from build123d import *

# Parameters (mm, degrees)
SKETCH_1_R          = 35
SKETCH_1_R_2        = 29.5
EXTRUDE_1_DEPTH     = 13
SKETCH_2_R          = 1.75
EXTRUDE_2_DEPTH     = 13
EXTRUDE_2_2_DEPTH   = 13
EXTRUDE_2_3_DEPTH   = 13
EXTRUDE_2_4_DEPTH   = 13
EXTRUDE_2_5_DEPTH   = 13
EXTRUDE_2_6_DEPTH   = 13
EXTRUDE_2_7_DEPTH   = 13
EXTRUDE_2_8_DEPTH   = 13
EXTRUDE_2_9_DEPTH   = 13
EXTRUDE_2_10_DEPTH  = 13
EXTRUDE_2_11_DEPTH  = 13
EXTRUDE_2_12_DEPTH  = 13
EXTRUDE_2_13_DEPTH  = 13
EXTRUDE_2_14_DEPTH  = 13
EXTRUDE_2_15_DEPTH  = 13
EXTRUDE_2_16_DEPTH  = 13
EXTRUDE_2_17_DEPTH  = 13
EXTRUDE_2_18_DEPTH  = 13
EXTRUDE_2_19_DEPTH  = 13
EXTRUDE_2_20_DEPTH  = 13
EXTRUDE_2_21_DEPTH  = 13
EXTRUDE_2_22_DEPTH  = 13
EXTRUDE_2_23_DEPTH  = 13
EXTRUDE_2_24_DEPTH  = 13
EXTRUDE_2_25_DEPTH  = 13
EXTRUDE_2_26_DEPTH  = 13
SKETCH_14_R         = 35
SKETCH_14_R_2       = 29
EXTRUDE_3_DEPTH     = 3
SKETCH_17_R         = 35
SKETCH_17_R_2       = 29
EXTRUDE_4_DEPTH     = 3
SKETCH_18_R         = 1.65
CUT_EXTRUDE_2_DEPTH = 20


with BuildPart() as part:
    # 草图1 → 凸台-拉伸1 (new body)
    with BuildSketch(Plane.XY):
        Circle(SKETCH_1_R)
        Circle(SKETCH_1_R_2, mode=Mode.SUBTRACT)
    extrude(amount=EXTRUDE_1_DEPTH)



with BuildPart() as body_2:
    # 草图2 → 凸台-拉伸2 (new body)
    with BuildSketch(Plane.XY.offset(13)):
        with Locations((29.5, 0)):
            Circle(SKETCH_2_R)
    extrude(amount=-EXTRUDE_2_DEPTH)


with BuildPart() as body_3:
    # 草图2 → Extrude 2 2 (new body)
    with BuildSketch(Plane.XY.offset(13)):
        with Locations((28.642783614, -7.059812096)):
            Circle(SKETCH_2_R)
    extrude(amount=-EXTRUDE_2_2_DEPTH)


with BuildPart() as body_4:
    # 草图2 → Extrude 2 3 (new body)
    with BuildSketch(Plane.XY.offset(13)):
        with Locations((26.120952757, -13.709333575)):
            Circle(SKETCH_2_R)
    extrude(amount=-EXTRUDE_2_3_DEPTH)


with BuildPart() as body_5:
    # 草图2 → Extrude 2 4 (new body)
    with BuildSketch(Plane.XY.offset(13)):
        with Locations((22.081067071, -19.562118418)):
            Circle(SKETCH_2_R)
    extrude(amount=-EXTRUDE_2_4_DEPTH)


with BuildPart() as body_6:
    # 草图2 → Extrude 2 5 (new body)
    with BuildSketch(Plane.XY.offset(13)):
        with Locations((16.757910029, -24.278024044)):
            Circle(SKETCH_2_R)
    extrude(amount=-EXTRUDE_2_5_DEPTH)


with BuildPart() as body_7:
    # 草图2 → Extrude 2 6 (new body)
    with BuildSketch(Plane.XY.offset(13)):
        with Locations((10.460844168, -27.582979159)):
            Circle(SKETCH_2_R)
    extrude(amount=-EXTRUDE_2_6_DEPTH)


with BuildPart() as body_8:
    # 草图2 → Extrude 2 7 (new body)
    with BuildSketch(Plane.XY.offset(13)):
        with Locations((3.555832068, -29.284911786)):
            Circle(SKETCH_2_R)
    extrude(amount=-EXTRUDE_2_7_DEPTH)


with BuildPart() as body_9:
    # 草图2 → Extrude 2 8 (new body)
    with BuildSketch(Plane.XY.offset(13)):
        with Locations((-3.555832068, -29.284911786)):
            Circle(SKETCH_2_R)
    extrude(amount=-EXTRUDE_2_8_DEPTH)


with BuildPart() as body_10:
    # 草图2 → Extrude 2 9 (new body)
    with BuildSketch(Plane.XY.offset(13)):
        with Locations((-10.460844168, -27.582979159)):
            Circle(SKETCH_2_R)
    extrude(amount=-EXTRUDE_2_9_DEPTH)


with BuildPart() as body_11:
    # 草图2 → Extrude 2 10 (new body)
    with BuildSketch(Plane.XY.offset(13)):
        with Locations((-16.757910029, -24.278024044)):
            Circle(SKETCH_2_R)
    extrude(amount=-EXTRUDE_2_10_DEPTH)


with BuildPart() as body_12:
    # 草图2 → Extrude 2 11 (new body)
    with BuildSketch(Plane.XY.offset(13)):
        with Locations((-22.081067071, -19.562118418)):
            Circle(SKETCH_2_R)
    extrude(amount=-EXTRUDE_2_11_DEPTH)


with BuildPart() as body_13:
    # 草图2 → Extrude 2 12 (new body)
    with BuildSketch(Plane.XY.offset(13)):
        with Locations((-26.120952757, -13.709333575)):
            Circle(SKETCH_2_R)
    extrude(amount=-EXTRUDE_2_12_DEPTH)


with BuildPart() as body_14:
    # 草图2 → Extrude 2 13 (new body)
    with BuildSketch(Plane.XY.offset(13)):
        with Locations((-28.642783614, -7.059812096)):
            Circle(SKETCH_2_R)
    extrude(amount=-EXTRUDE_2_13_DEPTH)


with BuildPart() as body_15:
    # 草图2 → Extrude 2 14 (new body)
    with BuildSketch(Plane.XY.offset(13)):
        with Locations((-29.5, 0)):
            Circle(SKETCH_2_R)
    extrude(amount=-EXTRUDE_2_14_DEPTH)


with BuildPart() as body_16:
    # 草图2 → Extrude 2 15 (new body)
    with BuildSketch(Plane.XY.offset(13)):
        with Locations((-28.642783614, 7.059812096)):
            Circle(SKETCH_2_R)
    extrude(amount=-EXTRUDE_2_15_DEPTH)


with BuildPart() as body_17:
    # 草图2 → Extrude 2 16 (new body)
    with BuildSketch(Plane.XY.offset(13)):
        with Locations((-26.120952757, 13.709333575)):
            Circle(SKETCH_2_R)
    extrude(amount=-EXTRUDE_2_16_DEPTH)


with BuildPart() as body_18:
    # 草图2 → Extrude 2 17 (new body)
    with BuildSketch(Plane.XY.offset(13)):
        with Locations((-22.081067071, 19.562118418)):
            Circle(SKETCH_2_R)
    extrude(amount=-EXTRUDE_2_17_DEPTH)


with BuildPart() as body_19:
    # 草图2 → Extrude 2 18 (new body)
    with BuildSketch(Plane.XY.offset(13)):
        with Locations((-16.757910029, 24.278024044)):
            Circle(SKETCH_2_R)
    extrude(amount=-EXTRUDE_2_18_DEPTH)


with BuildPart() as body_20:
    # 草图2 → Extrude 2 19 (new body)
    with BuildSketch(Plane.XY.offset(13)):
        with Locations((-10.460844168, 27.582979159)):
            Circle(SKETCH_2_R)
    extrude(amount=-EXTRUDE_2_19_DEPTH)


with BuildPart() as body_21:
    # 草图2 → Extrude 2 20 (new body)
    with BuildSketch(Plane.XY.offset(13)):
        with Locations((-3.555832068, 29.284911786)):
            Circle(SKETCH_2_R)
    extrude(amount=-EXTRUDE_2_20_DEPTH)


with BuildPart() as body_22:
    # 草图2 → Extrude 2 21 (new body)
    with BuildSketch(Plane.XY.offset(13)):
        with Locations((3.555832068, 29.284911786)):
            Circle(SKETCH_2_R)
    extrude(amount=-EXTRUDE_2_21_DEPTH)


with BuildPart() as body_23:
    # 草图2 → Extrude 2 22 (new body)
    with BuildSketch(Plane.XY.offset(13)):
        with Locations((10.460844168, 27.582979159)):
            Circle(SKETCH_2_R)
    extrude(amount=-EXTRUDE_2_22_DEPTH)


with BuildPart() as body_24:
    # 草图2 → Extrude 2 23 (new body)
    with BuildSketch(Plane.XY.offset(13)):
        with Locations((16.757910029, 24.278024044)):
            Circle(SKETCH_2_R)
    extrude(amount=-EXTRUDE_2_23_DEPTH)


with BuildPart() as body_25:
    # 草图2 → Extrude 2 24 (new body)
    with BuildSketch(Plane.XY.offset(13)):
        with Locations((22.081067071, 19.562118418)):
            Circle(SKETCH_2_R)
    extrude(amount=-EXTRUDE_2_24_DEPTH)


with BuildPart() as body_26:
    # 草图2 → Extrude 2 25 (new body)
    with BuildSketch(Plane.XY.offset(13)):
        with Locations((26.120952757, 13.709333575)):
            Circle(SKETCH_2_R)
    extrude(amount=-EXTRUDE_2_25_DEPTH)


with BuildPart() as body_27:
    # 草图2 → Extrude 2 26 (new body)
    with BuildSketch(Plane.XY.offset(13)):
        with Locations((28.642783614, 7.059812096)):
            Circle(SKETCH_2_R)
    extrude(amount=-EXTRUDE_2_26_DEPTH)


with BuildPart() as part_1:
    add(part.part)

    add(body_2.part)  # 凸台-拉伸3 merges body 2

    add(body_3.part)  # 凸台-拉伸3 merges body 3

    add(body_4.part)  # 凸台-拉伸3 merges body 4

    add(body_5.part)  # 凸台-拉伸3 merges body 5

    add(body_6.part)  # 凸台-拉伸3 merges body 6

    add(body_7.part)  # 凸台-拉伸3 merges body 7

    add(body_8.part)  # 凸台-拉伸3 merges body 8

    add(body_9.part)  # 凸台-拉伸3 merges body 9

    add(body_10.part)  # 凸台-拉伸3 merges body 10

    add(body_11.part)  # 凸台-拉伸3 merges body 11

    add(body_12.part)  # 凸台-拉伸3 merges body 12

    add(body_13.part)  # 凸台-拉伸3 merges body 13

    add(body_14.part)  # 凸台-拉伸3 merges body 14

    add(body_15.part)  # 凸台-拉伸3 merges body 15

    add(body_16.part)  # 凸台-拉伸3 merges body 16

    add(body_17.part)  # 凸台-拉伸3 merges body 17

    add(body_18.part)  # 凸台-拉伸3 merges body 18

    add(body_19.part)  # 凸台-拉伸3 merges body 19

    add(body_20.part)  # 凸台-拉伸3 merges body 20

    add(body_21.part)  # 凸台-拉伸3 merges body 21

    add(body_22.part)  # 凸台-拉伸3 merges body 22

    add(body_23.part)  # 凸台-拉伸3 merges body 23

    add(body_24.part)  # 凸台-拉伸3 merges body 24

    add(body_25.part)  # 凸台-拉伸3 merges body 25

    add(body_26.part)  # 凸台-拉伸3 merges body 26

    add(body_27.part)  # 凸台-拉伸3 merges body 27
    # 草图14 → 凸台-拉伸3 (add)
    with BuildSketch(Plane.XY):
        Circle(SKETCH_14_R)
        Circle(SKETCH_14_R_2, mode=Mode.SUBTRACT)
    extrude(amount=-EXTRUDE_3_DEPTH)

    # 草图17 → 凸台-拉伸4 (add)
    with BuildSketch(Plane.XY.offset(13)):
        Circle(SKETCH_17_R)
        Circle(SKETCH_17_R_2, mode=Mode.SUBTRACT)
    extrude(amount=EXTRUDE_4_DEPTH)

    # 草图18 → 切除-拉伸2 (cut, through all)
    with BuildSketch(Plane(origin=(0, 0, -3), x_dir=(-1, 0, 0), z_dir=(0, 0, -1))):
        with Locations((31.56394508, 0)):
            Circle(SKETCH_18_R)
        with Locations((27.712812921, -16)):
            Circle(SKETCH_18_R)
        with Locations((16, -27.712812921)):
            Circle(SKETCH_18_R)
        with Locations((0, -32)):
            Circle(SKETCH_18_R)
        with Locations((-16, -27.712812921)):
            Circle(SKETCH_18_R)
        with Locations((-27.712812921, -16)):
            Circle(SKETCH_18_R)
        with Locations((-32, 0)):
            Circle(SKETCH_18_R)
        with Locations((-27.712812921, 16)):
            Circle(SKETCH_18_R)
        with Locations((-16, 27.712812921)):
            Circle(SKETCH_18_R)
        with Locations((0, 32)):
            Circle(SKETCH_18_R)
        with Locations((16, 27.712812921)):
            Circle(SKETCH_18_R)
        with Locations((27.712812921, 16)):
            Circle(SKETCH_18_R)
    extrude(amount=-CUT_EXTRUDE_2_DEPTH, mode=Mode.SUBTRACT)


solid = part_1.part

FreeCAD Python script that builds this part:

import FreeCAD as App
import Part
import Sketcher
Q = App.Units.Quantity

doc = App.newDocument("Part")
body = doc.addObject("PartDesign::Body", "Body")

# Sketch on XY plane
sketch1 = body.newObject("Sketcher::SketchObject", "Sketch")
sketch1.AttachmentSupport = (doc.getObject("XY_Plane"), [""])
sketch1.MapMode = "FlatFace"
sketch1.addGeometry([
    Part.Circle(App.Vector(0, 0, 0), App.Vector(0, 0, 1), 35),
    Part.Circle(App.Vector(0, 0, 0), App.Vector(0, 0, 1), 29.5),
], False)
sketch1.addConstraint([
    Sketcher.Constraint("Coincident", 0, 3, -1, 1),
    Sketcher.Constraint("Coincident", 1, 3, -1, 1),
    Sketcher.Constraint("Diameter", 0, Q("70 mm")),
    Sketcher.Constraint("Diameter", 1, Q("59 mm")),
])
pad1 = body.newObject("PartDesign::Pad", "Pad")
pad1.Profile = sketch1
pad1.Length = 13
body2 = doc.addObject("PartDesign::Body", "Body001")

# Sketch on XY plane
sketch2 = body2.newObject("Sketcher::SketchObject", "Sketch001")
sketch2.AttachmentSupport = (doc.getObject("XY_Plane001"), [""])
sketch2.MapMode = "FlatFace"
sketch2.AttachmentOffset = App.Placement(App.Vector(0, 0, 13), App.Rotation())
sketch2.addGeometry(Part.Circle(App.Vector(29.5, 0, 0), App.Vector(0, 0, 1), 1.75), False)
sketch2.addConstraint([
    Sketcher.Constraint("PointOnObject", 0, 3, -1),
    Sketcher.Constraint("Diameter", 0, Q("3.5 mm")),
    Sketcher.Constraint("DistanceX", -1, 1, 0, 3, Q("29.5 mm")),
])
pad2 = body2.newObject("PartDesign::Pad", "Pad001")
pad2.Profile = sketch2
pad2.Length = 13
pad2.Reversed = True
body3 = doc.addObject("PartDesign::Body", "Body002")

# Sketch on XY plane
sketch3 = body3.newObject("Sketcher::SketchObject", "Sketch002")
sketch3.AttachmentSupport = (doc.getObject("XY_Plane002"), [""])
sketch3.MapMode = "FlatFace"
sketch3.AttachmentOffset = App.Placement(App.Vector(0, 0, 13), App.Rotation())
sketch3.addGeometry(Part.Circle(App.Vector(28.642784, -7.059812, 0), App.Vector(0, 0, 1), 1.75), False)
sketch3.addConstraint([
    Sketcher.Constraint("Diameter", 0, Q("3.5 mm")),
    Sketcher.Constraint("DistanceX", -1, 1, 0, 3, Q("28.642784 mm")),
    Sketcher.Constraint("DistanceY", 0, 3, -1, 1, Q("7.059812 mm")),
])
pad3 = body3.newObject("PartDesign::Pad", "Pad002")
pad3.Profile = sketch3
pad3.Length = 13
pad3.Reversed = True
body4 = doc.addObject("PartDesign::Body", "Body003")

# Sketch on XY plane
sketch4 = body4.newObject("Sketcher::SketchObject", "Sketch003")
sketch4.AttachmentSupport = (doc.getObject("XY_Plane003"), [""])
sketch4.MapMode = "FlatFace"
sketch4.AttachmentOffset = App.Placement(App.Vector(0, 0, 13), App.Rotation())
sketch4.addGeometry(Part.Circle(App.Vector(26.120953, -13.709334, 0), App.Vector(0, 0, 1), 1.75), False)
sketch4.addConstraint([
    Sketcher.Constraint("Diameter", 0, Q("3.5 mm")),
    Sketcher.Constraint("DistanceX", -1, 1, 0, 3, Q("26.120953 mm")),
    Sketcher.Constraint("DistanceY", 0, 3, -1, 1, Q("13.709334 mm")),
])
pad4 = body4.newObject("PartDesign::Pad", "Pad003")
pad4.Profile = sketch4
pad4.Length = 13
pad4.Reversed = True
body5 = doc.addObject("PartDesign::Body", "Body004")

# Sketch on XY plane
sketch5 = body5.newObject("Sketcher::SketchObject", "Sketch004")
sketch5.AttachmentSupport = (doc.getObject("XY_Plane004"), [""])
sketch5.MapMode = "FlatFace"
sketch5.AttachmentOffset = App.Placement(App.Vector(0, 0, 13), App.Rotation())
sketch5.addGeometry(Part.Circle(App.Vector(22.081067, -19.562118, 0), App.Vector(0, 0, 1), 1.75), False)
sketch5.addConstraint([
    Sketcher.Constraint("Diameter", 0, Q("3.5 mm")),
    Sketcher.Constraint("DistanceY", 0, 3, -1, 1, Q("19.562118 mm")),
    Sketcher.Constraint("DistanceX", -1, 1, 0, 3, Q("22.081067 mm")),
])
pad5 = body5.newObject("PartDesign::Pad", "Pad004")
pad5.Profile = sketch5
pad5.Length = 13
pad5.Reversed = True
body6 = doc.addObject("PartDesign::Body", "Body005")

# Sketch on XY plane
sketch6 = body6.newObject("Sketcher::SketchObject", "Sketch005")
sketch6.AttachmentSupport = (doc.getObject("XY_Plane005"), [""])
sketch6.MapMode = "FlatFace"
sketch6.AttachmentOffset = App.Placement(App.Vector(0, 0, 13), App.Rotation())
sketch6.addGeometry(Part.Circle(App.Vector(16.75791, -24.278024, 0), App.Vector(0, 0, 1), 1.75), False)
sketch6.addConstraint([
    Sketcher.Constraint("Diameter", 0, Q("3.5 mm")),
    Sketcher.Constraint("DistanceX", -1, 1, 0, 3, Q("16.75791 mm")),
    Sketcher.Constraint("DistanceY", 0, 3, -1, 1, Q("24.278024 mm")),
])
pad6 = body6.newObject("PartDesign::Pad", "Pad005")
pad6.Profile = sketch6
pad6.Length = 13
pad6.Reversed = True
body7 = doc.addObject("PartDesign::Body", "Body006")

# Sketch on XY plane
sketch7 = body7.newObject("Sketcher::SketchObject", "Sketch006")
sketch7.AttachmentSupport = (doc.getObject("XY_Plane006"), [""])
sketch7.MapMode = "FlatFace"
sketch7.AttachmentOffset = App.Placement(App.Vector(0, 0, 13), App.Rotation())
sketch7.addGeometry(Part.Circle(App.Vector(10.460844, -27.582979, 0), App.Vector(0, 0, 1), 1.75), False)
sketch7.addConstraint([
    Sketcher.Constraint("Diameter", 0, Q("3.5 mm")),
    Sketcher.Constraint("DistanceY", 0, 3, -1, 1, Q("27.582979 mm")),
    Sketcher.Constraint("DistanceX", -1, 1, 0, 3, Q("10.460844 mm")),
])
pad7 = body7.newObject("PartDesign::Pad", "Pad006")
pad7.Profile = sketch7
pad7.Length = 13
pad7.Reversed = True
body8 = doc.addObject("PartDesign::Body", "Body007")

# Sketch on XY plane
sketch8 = body8.newObject("Sketcher::SketchObject", "Sketch007")
sketch8.AttachmentSupport = (doc.getObject("XY_Plane007"), [""])
sketch8.MapMode = "FlatFace"
sketch8.AttachmentOffset = App.Placement(App.Vector(0, 0, 13), App.Rotation())
sketch8.addGeometry(Part.Circle(App.Vector(3.555832, -29.284912, 0), App.Vector(0, 0, 1), 1.75), False)
sketch8.addConstraint([
    Sketcher.Constraint("Diameter", 0, Q("3.5 mm")),
    Sketcher.Constraint("DistanceY", 0, 3, -1, 1, Q("29.284912 mm")),
    Sketcher.Constraint("DistanceX", -1, 1, 0, 3, Q("3.555832 mm")),
])
pad8 = body8.newObject("PartDesign::Pad", "Pad007")
pad8.Profile = sketch8
pad8.Length = 13
pad8.Reversed = True
body9 = doc.addObject("PartDesign::Body", "Body008")

# Sketch on XY plane
sketch9 = body9.newObject("Sketcher::SketchObject", "Sketch008")
sketch9.AttachmentSupport = (doc.getObject("XY_Plane008"), [""])
sketch9.MapMode = "FlatFace"
sketch9.AttachmentOffset = App.Placement(App.Vector(0, 0, 13), App.Rotation())
sketch9.addGeometry(Part.Circle(App.Vector(-3.555832, -29.284912, 0), App.Vector(0, 0, 1), 1.75), False)
sketch9.addConstraint([
    Sketcher.Constraint("Diameter", 0, Q("3.5 mm")),
    Sketcher.Constraint("DistanceY", 0, 3, -1, 1, Q("29.284912 mm")),
    Sketcher.Constraint("DistanceX", 0, 3, -1, 1, Q("3.555832 mm")),
])
pad9 = body9.newObject("PartDesign::Pad", "Pad008")
pad9.Profile = sketch9
pad9.Length = 13
pad9.Reversed = True
body10 = doc.addObject("PartDesign::Body", "Body009")

# Sketch on XY plane
sketch10 = body10.newObject("Sketcher::SketchObject", "Sketch009")
sketch10.AttachmentSupport = (doc.getObject("XY_Plane009"), [""])
sketch10.MapMode = "FlatFace"
sketch10.AttachmentOffset = App.Placement(App.Vector(0, 0, 13), App.Rotation())
sketch10.addGeometry(Part.Circle(App.Vector(-10.460844, -27.582979, 0), App.Vector(0, 0, 1), 1.75), False)
sketch10.addConstraint([
    Sketcher.Constraint("Diameter", 0, Q("3.5 mm")),
    Sketcher.Constraint("DistanceY", 0, 3, -1, 1, Q("27.582979 mm")),
    Sketcher.Constraint("DistanceX", 0, 3, -1, 1, Q("10.460844 mm")),
])
pad10 = body10.newObject("PartDesign::Pad", "Pad009")
pad10.Profile = sketch10
pad10.Length = 13
pad10.Reversed = True
body11 = doc.addObject("PartDesign::Body", "Body010")

# Sketch on XY plane
sketch11 = body11.newObject("Sketcher::SketchObject", "Sketch010")
sketch11.AttachmentSupport = (doc.getObject("XY_Plane010"), [""])
sketch11.MapMode = "FlatFace"
sketch11.AttachmentOffset = App.Placement(App.Vector(0, 0, 13), App.Rotation())
sketch11.addGeometry(Part.Circle(App.Vector(-16.75791, -24.278024, 0), App.Vector(0, 0, 1), 1.75), False)
sketch11.addConstraint([
    Sketcher.Constraint("Diameter", 0, Q("3.5 mm")),
    Sketcher.Constraint("DistanceX", 0, 3, -1, 1, Q("16.75791 mm")),
    Sketcher.Constraint("DistanceY", 0, 3, -1, 1, Q("24.278024 mm")),
])
pad11 = body11.newObject("PartDesign::Pad", "Pad010")
pad11.Profile = sketch11
pad11.Length = 13
pad11.Reversed = True
body12 = doc.addObject("PartDesign::Body", "Body011")

# Sketch on XY plane
sketch12 = body12.newObject("Sketcher::SketchObject", "Sketch011")
sketch12.AttachmentSupport = (doc.getObject("XY_Plane011"), [""])
sketch12.MapMode = "FlatFace"
sketch12.AttachmentOffset = App.Placement(App.Vector(0, 0, 13), App.Rotation())
sketch12.addGeometry(Part.Circle(App.Vector(-22.081067, -19.562118, 0), App.Vector(0, 0, 1), 1.75), False)
sketch12.addConstraint([
    Sketcher.Constraint("Diameter", 0, Q("3.5 mm")),
    Sketcher.Constraint("DistanceY", 0, 3, -1, 1, Q("19.562118 mm")),
    Sketcher.Constraint("DistanceX", 0, 3, -1, 1, Q("22.081067 mm")),
])
pad12 = body12.newObject("PartDesign::Pad", "Pad011")
pad12.Profile = sketch12
pad12.Length = 13
pad12.Reversed = True
body13 = doc.addObject("PartDesign::Body", "Body012")

# Sketch on XY plane
sketch13 = body13.newObject("Sketcher::SketchObject", "Sketch012")
sketch13.AttachmentSupport = (doc.getObject("XY_Plane012"), [""])
sketch13.MapMode = "FlatFace"
sketch13.AttachmentOffset = App.Placement(App.Vector(0, 0, 13), App.Rotation())
sketch13.addGeometry(Part.Circle(App.Vector(-26.120953, -13.709334, 0), App.Vector(0, 0, 1), 1.75), False)
sketch13.addConstraint([
    Sketcher.Constraint("Diameter", 0, Q("3.5 mm")),
    Sketcher.Constraint("DistanceX", 0, 3, -1, 1, Q("26.120953 mm")),
    Sketcher.Constraint("DistanceY", 0, 3, -1, 1, Q("13.709334 mm")),
])
pad13 = body13.newObject("PartDesign::Pad", "Pad012")
pad13.Profile = sketch13
pad13.Length = 13
pad13.Reversed = True
body14 = doc.addObject("PartDesign::Body", "Body013")

# Sketch on XY plane
sketch14 = body14.newObject("Sketcher::SketchObject", "Sketch013")
sketch14.AttachmentSupport = (doc.getObject("XY_Plane013"), [""])
sketch14.MapMode = "FlatFace"
sketch14.AttachmentOffset = App.Placement(App.Vector(0, 0, 13), App.Rotation())
sketch14.addGeometry(Part.Circle(App.Vector(-28.642784, -7.059812, 0), App.Vector(0, 0, 1), 1.75), False)
sketch14.addConstraint([
    Sketcher.Constraint("Diameter", 0, Q("3.5 mm")),
    Sketcher.Constraint("DistanceX", 0, 3, -1, 1, Q("28.642784 mm")),
    Sketcher.Constraint("DistanceY", 0, 3, -1, 1, Q("7.059812 mm")),
])
pad14 = body14.newObject("PartDesign::Pad", "Pad013")
pad14.Profile = sketch14
pad14.Length = 13
pad14.Reversed = True
body15 = doc.addObject("PartDesign::Body", "Body014")

# Sketch on XY plane
sketch15 = body15.newObject("Sketcher::SketchObject", "Sketch014")
sketch15.AttachmentSupport = (doc.getObject("XY_Plane014"), [""])
sketch15.MapMode = "FlatFace"
sketch15.AttachmentOffset = App.Placement(App.Vector(0, 0, 13), App.Rotation())
sketch15.addGeometry(Part.Circle(App.Vector(-29.5, 0, 0), App.Vector(0, 0, 1), 1.75), False)
sketch15.addConstraint([
    Sketcher.Constraint("PointOnObject", 0, 3, -1),
    Sketcher.Constraint("Diameter", 0, Q("3.5 mm")),
    Sketcher.Constraint("DistanceX", 0, 3, -1, 1, Q("29.5 mm")),
])
pad15 = body15.newObject("PartDesign::Pad", "Pad014")
pad15.Profile = sketch15
pad15.Length = 13
pad15.Reversed = True
body16 = doc.addObject("PartDesign::Body", "Body015")

# Sketch on XY plane
sketch16 = body16.newObject("Sketcher::SketchObject", "Sketch015")
sketch16.AttachmentSupport = (doc.getObject("XY_Plane015"), [""])
sketch16.MapMode = "FlatFace"
sketch16.AttachmentOffset = App.Placement(App.Vector(0, 0, 13), App.Rotation())
sketch16.addGeometry(Part.Circle(App.Vector(-28.642784, 7.059812, 0), App.Vector(0, 0, 1), 1.75), False)
sketch16.addConstraint([
    Sketcher.Constraint("Diameter", 0, Q("3.5 mm")),
    Sketcher.Constraint("DistanceX", 0, 3, -1, 1, Q("28.642784 mm")),
    Sketcher.Constraint("DistanceY", -1, 1, 0, 3, Q("7.059812 mm")),
])
pad16 = body16.newObject("PartDesign::Pad", "Pad015")
pad16.Profile = sketch16
pad16.Length = 13
pad16.Reversed = True
body17 = doc.addObject("PartDesign::Body", "Body016")

# Sketch on XY plane
sketch17 = body17.newObject("Sketcher::SketchObject", "Sketch016")
sketch17.AttachmentSupport = (doc.getObject("XY_Plane016"), [""])
sketch17.MapMode = "FlatFace"
sketch17.AttachmentOffset = App.Placement(App.Vector(0, 0, 13), App.Rotation())
sketch17.addGeometry(Part.Circle(App.Vector(-26.120953, 13.709334, 0), App.Vector(0, 0, 1), 1.75), False)
sketch17.addConstraint([
    Sketcher.Constraint("Diameter", 0, Q("3.5 mm")),
    Sketcher.Constraint("DistanceX", 0, 3, -1, 1, Q("26.120953 mm")),
    Sketcher.Constraint("DistanceY", -1, 1, 0, 3, Q("13.709334 mm")),
])
pad17 = body17.newObject("PartDesign::Pad", "Pad016")
pad17.Profile = sketch17
pad17.Length = 13
pad17.Reversed = True
body18 = doc.addObject("PartDesign::Body", "Body017")

# Sketch on XY plane
sketch18 = body18.newObject("Sketcher::SketchObject", "Sketch017")
sketch18.AttachmentSupport = (doc.getObject("XY_Plane017"), [""])
sketch18.MapMode = "FlatFace"
sketch18.AttachmentOffset = App.Placement(App.Vector(0, 0, 13), App.Rotation())
sketch18.addGeometry(Part.Circle(App.Vector(-22.081067, 19.562118, 0), App.Vector(0, 0, 1), 1.75), False)
sketch18.addConstraint([
    Sketcher.Constraint("Diameter", 0, Q("3.5 mm")),
    Sketcher.Constraint("DistanceY", -1, 1, 0, 3, Q("19.562118 mm")),
    Sketcher.Constraint("DistanceX", 0, 3, -1, 1, Q("22.081067 mm")),
])
pad18 = body18.newObject("PartDesign::Pad", "Pad017")
pad18.Profile = sketch18
pad18.Length = 13
pad18.Reversed = True
body19 = doc.addObject("PartDesign::Body", "Body018")

# Sketch on XY plane
sketch19 = body19.newObject("Sketcher::SketchObject", "Sketch018")
sketch19.AttachmentSupport = (doc.getObject("XY_Plane018"), [""])
sketch19.MapMode = "FlatFace"
sketch19.AttachmentOffset = App.Placement(App.Vector(0, 0, 13), App.Rotation())
sketch19.addGeometry(Part.Circle(App.Vector(-16.75791, 24.278024, 0), App.Vector(0, 0, 1), 1.75), False)
sketch19.addConstraint([
    Sketcher.Constraint("Diameter", 0, Q("3.5 mm")),
    Sketcher.Constraint("DistanceX", 0, 3, -1, 1, Q("16.75791 mm")),
    Sketcher.Constraint("DistanceY", -1, 1, 0, 3, Q("24.278024 mm")),
])
pad19 = body19.newObject("PartDesign::Pad", "Pad018")
pad19.Profile = sketch19
pad19.Length = 13
pad19.Reversed = True
body20 = doc.addObject("PartDesign::Body", "Body019")

# Sketch on XY plane
sketch20 = body20.newObject("Sketcher::SketchObject", "Sketch019")
sketch20.AttachmentSupport = (doc.getObject("XY_Plane019"), [""])
sketch20.MapMode = "FlatFace"
sketch20.AttachmentOffset = App.Placement(App.Vector(0, 0, 13), App.Rotation())
sketch20.addGeometry(Part.Circle(App.Vector(-10.460844, 27.582979, 0), App.Vector(0, 0, 1), 1.75), False)
sketch20.addConstraint([
    Sketcher.Constraint("Diameter", 0, Q("3.5 mm")),
    Sketcher.Constraint("DistanceY", -1, 1, 0, 3, Q("27.582979 mm")),
    Sketcher.Constraint("DistanceX", 0, 3, -1, 1, Q("10.460844 mm")),
])
pad20 = body20.newObject("PartDesign::Pad", "Pad019")
pad20.Profile = sketch20
pad20.Length = 13
pad20.Reversed = True
body21 = doc.addObject("PartDesign::Body", "Body020")

# Sketch on XY plane
sketch21 = body21.newObject("Sketcher::SketchObject", "Sketch020")
sketch21.AttachmentSupport = (doc.getObject("XY_Plane020"), [""])
sketch21.MapMode = "FlatFace"
sketch21.AttachmentOffset = App.Placement(App.Vector(0, 0, 13), App.Rotation())
sketch21.addGeometry(Part.Circle(App.Vector(-3.555832, 29.284912, 0), App.Vector(0, 0, 1), 1.75), False)
sketch21.addConstraint([
    Sketcher.Constraint("Diameter", 0, Q("3.5 mm")),
    Sketcher.Constraint("DistanceY", -1, 1, 0, 3, Q("29.284912 mm")),
    Sketcher.Constraint("DistanceX", 0, 3, -1, 1, Q("3.555832 mm")),
])
pad21 = body21.newObject("PartDesign::Pad", "Pad020")
pad21.Profile = sketch21
pad21.Length = 13
pad21.Reversed = True
body22 = doc.addObject("PartDesign::Body", "Body021")

# Sketch on XY plane
sketch22 = body22.newObject("Sketcher::SketchObject", "Sketch021")
sketch22.AttachmentSupport = (doc.getObject("XY_Plane021"), [""])
sketch22.MapMode = "FlatFace"
sketch22.AttachmentOffset = App.Placement(App.Vector(0, 0, 13), App.Rotation())
sketch22.addGeometry(Part.Circle(App.Vector(3.555832, 29.284912, 0), App.Vector(0, 0, 1), 1.75), False)
sketch22.addConstraint([
    Sketcher.Constraint("Diameter", 0, Q("3.5 mm")),
    Sketcher.Constraint("DistanceY", -1, 1, 0, 3, Q("29.284912 mm")),
    Sketcher.Constraint("DistanceX", -1, 1, 0, 3, Q("3.555832 mm")),
])
pad22 = body22.newObject("PartDesign::Pad", "Pad021")
pad22.Profile = sketch22
pad22.Length = 13
pad22.Reversed = True
body23 = doc.addObject("PartDesign::Body", "Body022")

# Sketch on XY plane
sketch23 = body23.newObject("Sketcher::SketchObject", "Sketch022")
sketch23.AttachmentSupport = (doc.getObject("XY_Plane022"), [""])
sketch23.MapMode = "FlatFace"
sketch23.AttachmentOffset = App.Placement(App.Vector(0, 0, 13), App.Rotation())
sketch23.addGeometry(Part.Circle(App.Vector(10.460844, 27.582979, 0), App.Vector(0, 0, 1), 1.75), False)
sketch23.addConstraint([
    Sketcher.Constraint("Diameter", 0, Q("3.5 mm")),
    Sketcher.Constraint("DistanceY", -1, 1, 0, 3, Q("27.582979 mm")),
    Sketcher.Constraint("DistanceX", -1, 1, 0, 3, Q("10.460844 mm")),
])
pad23 = body23.newObject("PartDesign::Pad", "Pad022")
pad23.Profile = sketch23
pad23.Length = 13
pad23.Reversed = True
body24 = doc.addObject("PartDesign::Body", "Body023")

# Sketch on XY plane
sketch24 = body24.newObject("Sketcher::SketchObject", "Sketch023")
sketch24.AttachmentSupport = (doc.getObject("XY_Plane023"), [""])
sketch24.MapMode = "FlatFace"
sketch24.AttachmentOffset = App.Placement(App.Vector(0, 0, 13), App.Rotation())
sketch24.addGeometry(Part.Circle(App.Vector(16.75791, 24.278024, 0), App.Vector(0, 0, 1), 1.75), False)
sketch24.addConstraint([
    Sketcher.Constraint("Diameter", 0, Q("3.5 mm")),
    Sketcher.Constraint("DistanceX", -1, 1, 0, 3, Q("16.75791 mm")),
    Sketcher.Constraint("DistanceY", -1, 1, 0, 3, Q("24.278024 mm")),
])
pad24 = body24.newObject("PartDesign::Pad", "Pad023")
pad24.Profile = sketch24
pad24.Length = 13
pad24.Reversed = True
body25 = doc.addObject("PartDesign::Body", "Body024")

# Sketch on XY plane
sketch25 = body25.newObject("Sketcher::SketchObject", "Sketch024")
sketch25.AttachmentSupport = (doc.getObject("XY_Plane024"), [""])
sketch25.MapMode = "FlatFace"
sketch25.AttachmentOffset = App.Placement(App.Vector(0, 0, 13), App.Rotation())
sketch25.addGeometry(Part.Circle(App.Vector(22.081067, 19.562118, 0), App.Vector(0, 0, 1), 1.75), False)
sketch25.addConstraint([
    Sketcher.Constraint("Diameter", 0, Q("3.5 mm")),
    Sketcher.Constraint("DistanceY", -1, 1, 0, 3, Q("19.562118 mm")),
    Sketcher.Constraint("DistanceX", -1, 1, 0, 3, Q("22.081067 mm")),
])
pad25 = body25.newObject("PartDesign::Pad", "Pad024")
pad25.Profile = sketch25
pad25.Length = 13
pad25.Reversed = True
body26 = doc.addObject("PartDesign::Body", "Body025")

# Sketch on XY plane
sketch26 = body26.newObject("Sketcher::SketchObject", "Sketch025")
sketch26.AttachmentSupport = (doc.getObject("XY_Plane025"), [""])
sketch26.MapMode = "FlatFace"
sketch26.AttachmentOffset = App.Placement(App.Vector(0, 0, 13), App.Rotation())
sketch26.addGeometry(Part.Circle(App.Vector(26.120953, 13.709334, 0), App.Vector(0, 0, 1), 1.75), False)
sketch26.addConstraint([
    Sketcher.Constraint("Diameter", 0, Q("3.5 mm")),
    Sketcher.Constraint("DistanceX", -1, 1, 0, 3, Q("26.120953 mm")),
    Sketcher.Constraint("DistanceY", -1, 1, 0, 3, Q("13.709334 mm")),
])
pad26 = body26.newObject("PartDesign::Pad", "Pad025")
pad26.Profile = sketch26
pad26.Length = 13
pad26.Reversed = True
body27 = doc.addObject("PartDesign::Body", "Body026")

# Sketch on XY plane
sketch27 = body27.newObject("Sketcher::SketchObject", "Sketch026")
sketch27.AttachmentSupport = (doc.getObject("XY_Plane026"), [""])
sketch27.MapMode = "FlatFace"
sketch27.AttachmentOffset = App.Placement(App.Vector(0, 0, 13), App.Rotation())
sketch27.addGeometry(Part.Circle(App.Vector(28.642784, 7.059812, 0), App.Vector(0, 0, 1), 1.75), False)
sketch27.addConstraint([
    Sketcher.Constraint("Diameter", 0, Q("3.5 mm")),
    Sketcher.Constraint("DistanceX", -1, 1, 0, 3, Q("28.642784 mm")),
    Sketcher.Constraint("DistanceY", -1, 1, 0, 3, Q("7.059812 mm")),
])
pad27 = body27.newObject("PartDesign::Pad", "Pad026")
pad27.Profile = sketch27
pad27.Length = 13
pad27.Reversed = True
doc.recompute()

boolean = body.newObject("PartDesign::Boolean", "Boolean")
boolean.Type = "Fuse"
boolean.addObjects([body2])
doc.recompute()

boolean2 = body.newObject("PartDesign::Boolean", "Boolean001")
boolean2.Type = "Fuse"
boolean2.addObjects([body3])
doc.recompute()

boolean3 = body.newObject("PartDesign::Boolean", "Boolean002")
boolean3.Type = "Fuse"
boolean3.addObjects([body4])
doc.recompute()

boolean4 = body.newObject("PartDesign::Boolean", "Boolean003")
boolean4.Type = "Fuse"
boolean4.addObjects([body5])
doc.recompute()

boolean5 = body.newObject("PartDesign::Boolean", "Boolean004")
boolean5.Type = "Fuse"
boolean5.addObjects([body6])
doc.recompute()

boolean6 = body.newObject("PartDesign::Boolean", "Boolean005")
boolean6.Type = "Fuse"
boolean6.addObjects([body7])
doc.recompute()

boolean7 = body.newObject("PartDesign::Boolean", "Boolean006")
boolean7.Type = "Fuse"
boolean7.addObjects([body8])
doc.recompute()

boolean8 = body.newObject("PartDesign::Boolean", "Boolean007")
boolean8.Type = "Fuse"
boolean8.addObjects([body9])
doc.recompute()

boolean9 = body.newObject("PartDesign::Boolean", "Boolean008")
boolean9.Type = "Fuse"
boolean9.addObjects([body10])
doc.recompute()

boolean10 = body.newObject("PartDesign::Boolean", "Boolean009")
boolean10.Type = "Fuse"
boolean10.addObjects([body11])
doc.recompute()

boolean11 = body.newObject("PartDesign::Boolean", "Boolean010")
boolean11.Type = "Fuse"
boolean11.addObjects([body12])
doc.recompute()

boolean12 = body.newObject("PartDesign::Boolean", "Boolean011")
boolean12.Type = "Fuse"
boolean12.addObjects([body13])
doc.recompute()

boolean13 = body.newObject("PartDesign::Boolean", "Boolean012")
boolean13.Type = "Fuse"
boolean13.addObjects([body14])
doc.recompute()

boolean14 = body.newObject("PartDesign::Boolean", "Boolean013")
boolean14.Type = "Fuse"
boolean14.addObjects([body15])
doc.recompute()

boolean15 = body.newObject("PartDesign::Boolean", "Boolean014")
boolean15.Type = "Fuse"
boolean15.addObjects([body16])
doc.recompute()

boolean16 = body.newObject("PartDesign::Boolean", "Boolean015")
boolean16.Type = "Fuse"
boolean16.addObjects([body17])
doc.recompute()

boolean17 = body.newObject("PartDesign::Boolean", "Boolean016")
boolean17.Type = "Fuse"
boolean17.addObjects([body18])
doc.recompute()

boolean18 = body.newObject("PartDesign::Boolean", "Boolean017")
boolean18.Type = "Fuse"
boolean18.addObjects([body19])
doc.recompute()

boolean19 = body.newObject("PartDesign::Boolean", "Boolean018")
boolean19.Type = "Fuse"
boolean19.addObjects([body20])
doc.recompute()

boolean20 = body.newObject("PartDesign::Boolean", "Boolean019")
boolean20.Type = "Fuse"
boolean20.addObjects([body21])
doc.recompute()

boolean21 = body.newObject("PartDesign::Boolean", "Boolean020")
boolean21.Type = "Fuse"
boolean21.addObjects([body22])
doc.recompute()

boolean22 = body.newObject("PartDesign::Boolean", "Boolean021")
boolean22.Type = "Fuse"
boolean22.addObjects([body23])
doc.recompute()

boolean23 = body.newObject("PartDesign::Boolean", "Boolean022")
boolean23.Type = "Fuse"
boolean23.addObjects([body24])
doc.recompute()

boolean24 = body.newObject("PartDesign::Boolean", "Boolean023")
boolean24.Type = "Fuse"
boolean24.addObjects([body25])
doc.recompute()

boolean25 = body.newObject("PartDesign::Boolean", "Boolean024")
boolean25.Type = "Fuse"
boolean25.addObjects([body26])
doc.recompute()

boolean26 = body.newObject("PartDesign::Boolean", "Boolean025")
boolean26.Type = "Fuse"
boolean26.addObjects([body27])

# Sketch on XY plane
sketch28 = body.newObject("Sketcher::SketchObject", "Sketch027")
sketch28.AttachmentSupport = (doc.getObject("XY_Plane"), [""])
sketch28.MapMode = "FlatFace"
sketch28.addGeometry([
    Part.Circle(App.Vector(0, 0, 0), App.Vector(0, 0, 1), 35),
    Part.Circle(App.Vector(0, 0, 0), App.Vector(0, 0, 1), 29),
], False)
sketch28.addConstraint([
    Sketcher.Constraint("Coincident", 0, 3, -1, 1),
    Sketcher.Constraint("Coincident", 1, 3, -1, 1),
    Sketcher.Constraint("Diameter", 0, Q("70 mm")),
    Sketcher.Constraint("Diameter", 1, Q("58 mm")),
])
pad28 = body.newObject("PartDesign::Pad", "Pad027")
pad28.Profile = sketch28
pad28.Length = 3
pad28.Reversed = True

# Sketch on XY plane
sketch29 = body.newObject("Sketcher::SketchObject", "Sketch028")
sketch29.AttachmentSupport = (doc.getObject("XY_Plane"), [""])
sketch29.MapMode = "FlatFace"
sketch29.AttachmentOffset = App.Placement(App.Vector(0, 0, 13), App.Rotation())
sketch29.addGeometry([
    Part.Circle(App.Vector(0, 0, 0), App.Vector(0, 0, 1), 35),
    Part.Circle(App.Vector(0, 0, 0), App.Vector(0, 0, 1), 29),
], False)
sketch29.addConstraint([
    Sketcher.Constraint("Coincident", 0, 3, -1, 1),
    Sketcher.Constraint("Coincident", 1, 3, -1, 1),
    Sketcher.Constraint("Diameter", 0, Q("70 mm")),
    Sketcher.Constraint("Diameter", 1, Q("58 mm")),
])
pad29 = body.newObject("PartDesign::Pad", "Pad028")
pad29.Profile = sketch29
pad29.Length = 3

# Sketch on XY plane
sketch30 = body.newObject("Sketcher::SketchObject", "Sketch029")
sketch30.AttachmentSupport = (doc.getObject("XY_Plane"), [""])
sketch30.MapMode = "FlatFace"
sketch30.AttachmentOffset = App.Placement(App.Vector(0, 0, -3), App.Rotation())
sketch30.addGeometry([
    Part.Circle(App.Vector(-31.563945, 0, 0), App.Vector(0, 0, 1), 1.65),  # 0
    Part.Circle(App.Vector(-27.712813, -16, 0), App.Vector(0, 0, 1), 1.65),  # 1
    Part.Circle(App.Vector(-16, -27.712813, 0), App.Vector(0, 0, 1), 1.65),  # 2
    Part.Circle(App.Vector(0, -32, 0), App.Vector(0, 0, 1), 1.65),  # 3
    Part.Circle(App.Vector(16, -27.712813, 0), App.Vector(0, 0, 1), 1.65),  # 4
    Part.Circle(App.Vector(27.712813, -16, 0), App.Vector(0, 0, 1), 1.65),  # 5
    Part.Circle(App.Vector(32, 0, 0), App.Vector(0, 0, 1), 1.65),  # 6
    Part.Circle(App.Vector(27.712813, 16, 0), App.Vector(0, 0, 1), 1.65),  # 7
    Part.Circle(App.Vector(16, 27.712813, 0), App.Vector(0, 0, 1), 1.65),  # 8
    Part.Circle(App.Vector(0, 32, 0), App.Vector(0, 0, 1), 1.65),  # 9
    Part.Circle(App.Vector(-16, 27.712813, 0), App.Vector(0, 0, 1), 1.65),  # 10
    Part.Circle(App.Vector(-27.712813, 16, 0), App.Vector(0, 0, 1), 1.65),  # 11
], False)
sketch30.addConstraint([
    Sketcher.Constraint("Equal", 0, 1),
    Sketcher.Constraint("Equal", 1, 2),
    Sketcher.Constraint("Equal", 2, 3),
    Sketcher.Constraint("Equal", 3, 4),
    Sketcher.Constraint("Equal", 4, 5),
    Sketcher.Constraint("Equal", 5, 6),
    Sketcher.Constraint("Equal", 6, 7),
    Sketcher.Constraint("Equal", 7, 8),
    Sketcher.Constraint("Equal", 8, 9),
    Sketcher.Constraint("Equal", 9, 10),
    Sketcher.Constraint("Equal", 10, 11),
    Sketcher.Constraint("Symmetric", 1, 3, 7, 3, -1, 1),
    Sketcher.Constraint("Symmetric", 2, 3, 8, 3, -1, 1),
    Sketcher.Constraint("Symmetric", 3, 3, 9, 3, -1, 1),
    Sketcher.Constraint("Symmetric", 4, 3, 10, 3, -1, 1),
    Sketcher.Constraint("Symmetric", 5, 3, 11, 3, -1, 1),
    Sketcher.Constraint("Symmetric", 2, 3, 4, 3, -2),
    Sketcher.Constraint("Symmetric", 1, 3, 5, 3, -2),
    Sketcher.Constraint("PointOnObject", 0, 3, -1),
    Sketcher.Constraint("PointOnObject", 3, 3, -2),
    Sketcher.Constraint("PointOnObject", 6, 3, -1),
    Sketcher.Constraint("Diameter", 0, Q("3.3 mm")),
    Sketcher.Constraint("DistanceY", 1, 3, -1, 1, Q("16 mm")),
    Sketcher.Constraint("DistanceX", 2, 3, -1, 1, Q("16 mm")),
    Sketcher.Constraint("DistanceY", 3, 3, -1, 1, Q("32 mm")),
    Sketcher.Constraint("DistanceX", -1, 1, 6, 3, Q("32 mm")),
    Sketcher.Constraint("DistanceX", 0, 3, 5, 3, Q("59.276758 mm")),
    Sketcher.Constraint("DistanceX", 0, 3, -1, 1, Q("31.563945 mm")),
    Sketcher.Constraint("DistanceY", 2, 3, -1, 1, Q("27.712813 mm")),
])
pocket1 = body.newObject("PartDesign::Pocket", "Pocket")
pocket1.Profile = sketch30
pocket1.Type = "ThroughAll"
pocket1.Reversed = True

doc.recompute()
